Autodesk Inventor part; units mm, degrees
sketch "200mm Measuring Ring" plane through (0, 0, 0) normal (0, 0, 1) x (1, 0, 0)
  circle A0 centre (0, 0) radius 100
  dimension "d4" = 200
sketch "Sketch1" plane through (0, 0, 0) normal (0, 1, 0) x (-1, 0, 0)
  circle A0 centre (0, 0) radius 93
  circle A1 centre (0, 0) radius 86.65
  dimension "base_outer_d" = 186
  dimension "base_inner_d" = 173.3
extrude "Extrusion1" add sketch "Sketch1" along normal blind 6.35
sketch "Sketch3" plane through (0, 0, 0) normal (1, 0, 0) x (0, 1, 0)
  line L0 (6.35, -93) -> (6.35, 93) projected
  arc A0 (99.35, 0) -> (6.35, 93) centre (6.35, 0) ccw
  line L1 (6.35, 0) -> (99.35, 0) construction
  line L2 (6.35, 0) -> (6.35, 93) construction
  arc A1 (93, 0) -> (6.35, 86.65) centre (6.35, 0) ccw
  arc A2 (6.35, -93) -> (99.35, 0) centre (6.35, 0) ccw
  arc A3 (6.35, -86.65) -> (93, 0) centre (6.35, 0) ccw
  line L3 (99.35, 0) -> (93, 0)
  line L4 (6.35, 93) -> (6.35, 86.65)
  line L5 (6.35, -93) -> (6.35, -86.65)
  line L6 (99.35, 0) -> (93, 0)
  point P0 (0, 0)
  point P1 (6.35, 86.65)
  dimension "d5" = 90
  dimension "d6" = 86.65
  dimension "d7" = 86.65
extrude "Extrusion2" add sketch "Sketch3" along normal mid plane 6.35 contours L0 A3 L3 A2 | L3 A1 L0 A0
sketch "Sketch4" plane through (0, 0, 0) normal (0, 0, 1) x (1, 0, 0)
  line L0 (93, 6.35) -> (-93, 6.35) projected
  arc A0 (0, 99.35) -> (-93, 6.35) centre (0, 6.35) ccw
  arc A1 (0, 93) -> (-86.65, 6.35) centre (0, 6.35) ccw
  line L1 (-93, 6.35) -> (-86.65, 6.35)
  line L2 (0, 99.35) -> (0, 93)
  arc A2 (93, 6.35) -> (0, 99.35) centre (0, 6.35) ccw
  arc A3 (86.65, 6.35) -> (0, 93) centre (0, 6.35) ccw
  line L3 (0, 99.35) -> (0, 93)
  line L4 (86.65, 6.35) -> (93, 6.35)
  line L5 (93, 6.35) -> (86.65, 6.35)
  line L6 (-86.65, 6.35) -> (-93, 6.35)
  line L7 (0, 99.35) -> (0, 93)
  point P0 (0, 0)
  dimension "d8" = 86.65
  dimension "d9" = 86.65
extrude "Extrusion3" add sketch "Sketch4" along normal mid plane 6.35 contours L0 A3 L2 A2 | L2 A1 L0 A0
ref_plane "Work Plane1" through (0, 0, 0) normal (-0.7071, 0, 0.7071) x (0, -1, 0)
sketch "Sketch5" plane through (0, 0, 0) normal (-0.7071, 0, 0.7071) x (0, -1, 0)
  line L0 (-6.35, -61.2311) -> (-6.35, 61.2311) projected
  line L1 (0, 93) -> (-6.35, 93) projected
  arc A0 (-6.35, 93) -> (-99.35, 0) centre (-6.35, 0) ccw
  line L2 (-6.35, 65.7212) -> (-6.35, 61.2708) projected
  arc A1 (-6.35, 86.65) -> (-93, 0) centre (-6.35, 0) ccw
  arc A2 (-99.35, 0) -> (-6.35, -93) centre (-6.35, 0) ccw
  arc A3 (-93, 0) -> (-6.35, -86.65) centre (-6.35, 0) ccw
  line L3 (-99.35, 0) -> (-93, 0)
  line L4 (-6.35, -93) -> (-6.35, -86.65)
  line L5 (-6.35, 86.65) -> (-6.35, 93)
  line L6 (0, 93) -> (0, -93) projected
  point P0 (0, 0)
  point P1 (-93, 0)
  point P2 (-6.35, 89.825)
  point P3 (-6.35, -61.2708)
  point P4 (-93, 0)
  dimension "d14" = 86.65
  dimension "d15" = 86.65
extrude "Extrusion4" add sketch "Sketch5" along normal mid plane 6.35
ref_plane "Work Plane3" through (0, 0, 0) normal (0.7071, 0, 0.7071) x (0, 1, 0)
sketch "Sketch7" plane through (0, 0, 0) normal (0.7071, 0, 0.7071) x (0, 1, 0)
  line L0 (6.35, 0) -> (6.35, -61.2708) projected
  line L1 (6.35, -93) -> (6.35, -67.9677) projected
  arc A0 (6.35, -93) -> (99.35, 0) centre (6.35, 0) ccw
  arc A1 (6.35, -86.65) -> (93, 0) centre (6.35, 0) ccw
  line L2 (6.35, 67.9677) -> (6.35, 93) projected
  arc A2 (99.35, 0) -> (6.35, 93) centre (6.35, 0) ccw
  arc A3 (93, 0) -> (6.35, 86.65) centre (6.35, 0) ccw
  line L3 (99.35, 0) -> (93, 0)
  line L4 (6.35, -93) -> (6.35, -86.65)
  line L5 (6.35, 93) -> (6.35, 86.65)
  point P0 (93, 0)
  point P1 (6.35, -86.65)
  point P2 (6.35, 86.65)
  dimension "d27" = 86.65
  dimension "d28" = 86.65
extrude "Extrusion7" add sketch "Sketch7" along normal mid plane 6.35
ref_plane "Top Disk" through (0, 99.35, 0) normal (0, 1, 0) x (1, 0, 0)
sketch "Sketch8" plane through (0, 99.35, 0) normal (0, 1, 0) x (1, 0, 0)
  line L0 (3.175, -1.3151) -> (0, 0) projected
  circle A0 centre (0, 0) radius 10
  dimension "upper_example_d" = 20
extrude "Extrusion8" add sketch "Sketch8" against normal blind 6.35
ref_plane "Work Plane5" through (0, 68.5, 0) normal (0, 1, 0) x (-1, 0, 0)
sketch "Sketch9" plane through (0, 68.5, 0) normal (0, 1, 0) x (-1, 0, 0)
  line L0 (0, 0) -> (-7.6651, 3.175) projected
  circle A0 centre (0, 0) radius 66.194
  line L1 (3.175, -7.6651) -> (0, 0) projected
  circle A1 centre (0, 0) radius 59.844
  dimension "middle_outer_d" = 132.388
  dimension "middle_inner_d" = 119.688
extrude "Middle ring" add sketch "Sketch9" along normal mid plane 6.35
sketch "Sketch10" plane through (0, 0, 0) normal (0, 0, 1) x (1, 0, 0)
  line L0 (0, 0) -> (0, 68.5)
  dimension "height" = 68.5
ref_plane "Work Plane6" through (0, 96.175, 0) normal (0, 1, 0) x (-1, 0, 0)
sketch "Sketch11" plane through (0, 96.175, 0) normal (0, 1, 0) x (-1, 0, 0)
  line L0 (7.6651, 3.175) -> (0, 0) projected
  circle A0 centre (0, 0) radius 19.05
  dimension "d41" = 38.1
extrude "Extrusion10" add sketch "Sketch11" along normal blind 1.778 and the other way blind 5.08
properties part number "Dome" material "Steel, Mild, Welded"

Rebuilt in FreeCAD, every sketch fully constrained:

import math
import FreeCAD as App
import Part
import Sketcher

V = App.Vector
Q = App.Units.Quantity

doc = App.newDocument("Part")
body = doc.addObject("PartDesign::Body", "Body")

# Sketch on XZ plane
sketch1 = body.newObject("Sketcher::SketchObject", "Sketch")
sketch1.AttachmentSupport = (doc.getObject("XZ_Plane"), [""])
sketch1.MapMode = "FlatFace"
sketch1.addGeometry([
    Part.Circle(V(0, 0, 0), V(0, 0, 1), 93),
    Part.Circle(V(0, 0, 0), V(0, 0, 1), 87),
], False)
sketch1.addConstraint([
    Sketcher.Constraint("Coincident", 0, 3, -1, 1),
    Sketcher.Constraint("Coincident", 1, 3, -1, 1),
    Sketcher.Constraint("Diameter", 0, 186.0),
    Sketcher.Constraint("Diameter", 1, 173.3),
])
pad1 = body.newObject("PartDesign::Pad", "Pad")
pad1.Profile = sketch1
pad1.Length = Q("0.25 in")
pad1.Reversed = True

# Sketch on YZ plane
sketch2 = body.newObject("Sketcher::SketchObject", "Sketch001")
sketch2.AttachmentSupport = (doc.getObject("YZ_Plane"), [""])
sketch2.MapMode = "FlatFace"
sketch2.addGeometry([
    Part.LineSegment(V(6, -87, 0), V(6, -93, 0)),
    Part.ArcOfCircle(Part.Circle(V(6, 0, 0), V(0, 0, 1), 93), math.radians(-90), math.radians(90)),
    Part.LineSegment(V(6, 93, 0), V(6, 87, 0)),
    Part.ArcOfCircle(Part.Circle(V(6, 0, 0), V(0, 0, 1), 87), math.radians(-90), math.radians(90)),
], False)
sketch2.addConstraint([
    Sketcher.Constraint("Coincident", 0, 2, 1, 1),
    Sketcher.Constraint("Coincident", 1, 2, 2, 1),
    Sketcher.Constraint("Coincident", 2, 2, 3, 2),
    Sketcher.Constraint("Coincident", 3, 1, 0, 1),
    Sketcher.Constraint("Vertical", 0),
    Sketcher.Constraint("Vertical", 2),
    Sketcher.Constraint("Coincident", 3, 3, 1, 3),
    Sketcher.Constraint("Symmetric", 0, 2, 1, 2, -1),
    Sketcher.Constraint("Vertical", 3, 3, 0, 2),
    Sketcher.Constraint("Radius", 3, 86.65),
    Sketcher.Constraint("DistanceY", 0, 2, 0, 1, Q("0.25 in")),
    Sketcher.Constraint("DistanceX", -1, 1, 1, 3, Q("0.25 in")),
])
pad2 = body.newObject("PartDesign::Pad", "Pad001")
pad2.Profile = sketch2
pad2.Length = Q("0.25 in")
pad2.Midplane = True

# Sketch on XY plane
sketch3 = body.newObject("Sketcher::SketchObject", "Sketch002")
sketch3.AttachmentSupport = (doc.getObject("XY_Plane"), [""])
sketch3.MapMode = "FlatFace"
sketch3.addGeometry([
    Part.LineSegment(V(87, 6, 0), V(93, 6, 0)),
    Part.ArcOfCircle(Part.Circle(V(0, 6, 0), V(0, 0, 1), 93), math.radians(0), math.radians(180)),
    Part.LineSegment(V(-93, 6, 0), V(-87, 6, 0)),
    Part.ArcOfCircle(Part.Circle(V(0, 6, 0), V(0, 0, 1), 87), math.radians(0), math.radians(180)),
], False)
sketch3.addConstraint([
    Sketcher.Constraint("Coincident", 0, 2, 1, 1),
    Sketcher.Constraint("Coincident", 1, 2, 2, 1),
    Sketcher.Constraint("Coincident", 2, 2, 3, 2),
    Sketcher.Constraint("Coincident", 3, 1, 0, 1),
    Sketcher.Constraint("Horizontal", 0),
    Sketcher.Constraint("Horizontal", 2),
    Sketcher.Constraint("Coincident", 3, 3, 1, 3),
    Sketcher.Constraint("Symmetric", 0, 2, 1, 2, -2),
    Sketcher.Constraint("Horizontal", 3, 3, 0, 2),
    Sketcher.Constraint("Radius", 3, 86.65),
    Sketcher.Constraint("DistanceX", 0, 1, 0, 2, Q("0.25 in")),
    Sketcher.Constraint("DistanceY", -1, 1, 1, 3, Q("0.25 in")),
])
pad3 = body.newObject("PartDesign::Pad", "Pad002")
pad3.Profile = sketch3
pad3.Length = Q("0.25 in")
pad3.Midplane = True

# Sketch on an angled plane
sketch4 = body.newObject("Sketcher::SketchObject", "Sketch003")
sketch4.Placement = App.Placement(V(0, 0, 0), App.Rotation(V(0, -1, 0), V(0.707106781, 0, 0.707106781), V(-0.707106781, 0, 0.707106781), "ZXY"))
sketch4.addGeometry([
    Part.LineSegment(V(-6, 87, 0), V(-6, 93, 0)),
    Part.ArcOfCircle(Part.Circle(V(-6, 0, 0), V(0, 0, 1), 93), math.radians(90), math.radians(270)),
    Part.LineSegment(V(-6, -93, 0), V(-6, -87, 0)),
    Part.ArcOfCircle(Part.Circle(V(-6, 0, 0), V(0, 0, 1), 87), math.radians(90), math.radians(270)),
], False)
sketch4.addConstraint([
    Sketcher.Constraint("Coincident", 0, 2, 1, 1),
    Sketcher.Constraint("Coincident", 1, 2, 2, 1),
    Sketcher.Constraint("Coincident", 2, 2, 3, 2),
    Sketcher.Constraint("Coincident", 3, 1, 0, 1),
    Sketcher.Constraint("Vertical", 0),
    Sketcher.Constraint("Vertical", 2),
    Sketcher.Constraint("Coincident", 3, 3, 1, 3),
    Sketcher.Constraint("Symmetric", 0, 2, 1, 2, -1),
    Sketcher.Constraint("Vertical", 3, 3, 0, 2),
    Sketcher.Constraint("Radius", 3, 86.65),
    Sketcher.Constraint("DistanceY", 0, 1, 0, 2, Q("0.25 in")),
    Sketcher.Constraint("DistanceX", 1, 3, -1, 1, Q("0.25 in")),
])
pad4 = body.newObject("PartDesign::Pad", "Pad003")
pad4.Profile = sketch4
pad4.Length = Q("0.25 in")
pad4.Midplane = True

# Sketch on an angled plane
sketch5 = body.newObject("Sketcher::SketchObject", "Sketch004")
sketch5.Placement = App.Placement(V(0, 0, 0), App.Rotation(V(0, 1, 0), V(-0.707106781, 0, 0.707106781), V(0.707106781, 0, 0.707106781), "ZXY"))
sketch5.addGeometry([
    Part.LineSegment(V(6, -87, 0), V(6, -93, 0)),
    Part.ArcOfCircle(Part.Circle(V(6, 0, 0), V(0, 0, 1), 93), math.radians(-90), math.radians(90)),
    Part.LineSegment(V(6, 93, 0), V(6, 87, 0)),
    Part.ArcOfCircle(Part.Circle(V(6, 0, 0), V(0, 0, 1), 87), math.radians(-90), math.radians(90)),
], False)
sketch5.addConstraint([
    Sketcher.Constraint("Coincident", 0, 2, 1, 1),
    Sketcher.Constraint("Coincident", 1, 2, 2, 1),
    Sketcher.Constraint("Coincident", 2, 2, 3, 2),
    Sketcher.Constraint("Coincident", 3, 1, 0, 1),
    Sketcher.Constraint("Vertical", 0),
    Sketcher.Constraint("Vertical", 2),
    Sketcher.Constraint("Coincident", 3, 3, 1, 3),
    Sketcher.Constraint("Symmetric", 0, 2, 1, 2, -1),
    Sketcher.Constraint("Vertical", 3, 3, 0, 2),
    Sketcher.Constraint("Radius", 3, 86.65),
    Sketcher.Constraint("DistanceY", 0, 2, 0, 1, Q("0.25 in")),
    Sketcher.Constraint("DistanceX", -1, 1, 1, 3, Q("0.25 in")),
])
pad5 = body.newObject("PartDesign::Pad", "Pad004")
pad5.Profile = sketch5
pad5.Length = Q("0.25 in")
pad5.Midplane = True

# Sketch on XZ plane
sketch6 = body.newObject("Sketcher::SketchObject", "Sketch005")
sketch6.AttachmentSupport = (doc.getObject("XZ_Plane"), [""])
sketch6.MapMode = "FlatFace"
sketch6.AttachmentOffset = App.Placement(V(0, 0, -99.35), App.Rotation())
sketch6.addGeometry(Part.Circle(V(0, 0, 0), V(0, 0, 1), 10), False)
sketch6.addConstraint([
    Sketcher.Constraint("Coincident", 0, 3, -1, 1),
    Sketcher.Constraint("Diameter", 0, Q("0.7874 in")),
])
pad6 = body.newObject("PartDesign::Pad", "Pad005")
pad6.Profile = sketch6
pad6.Length = Q("0.25 in")

# Sketch on XZ plane
sketch7 = body.newObject("Sketcher::SketchObject", "Sketch006")
sketch7.AttachmentSupport = (doc.getObject("XZ_Plane"), [""])
sketch7.MapMode = "FlatFace"
sketch7.AttachmentOffset = App.Placement(V(0, 0, -68.5), App.Rotation())
sketch7.addGeometry([
    Part.Circle(V(0, 0, 0), V(0, 0, 1), 66),
    Part.Circle(V(0, 0, 0), V(0, 0, 1), 60),
], False)
sketch7.addConstraint([
    Sketcher.Constraint("Coincident", 0, 3, -1, 1),
    Sketcher.Constraint("Coincident", 1, 3, -1, 1),
    Sketcher.Constraint("Diameter", 0, 132.388),
    Sketcher.Constraint("Diameter", 1, 119.688),
])
pad7 = body.newObject("PartDesign::Pad", "Pad006")
pad7.Profile = sketch7
pad7.Length = Q("0.25 in")
pad7.Midplane = True

# Sketch on XZ plane
sketch8 = body.newObject("Sketcher::SketchObject", "Sketch007")
sketch8.AttachmentSupport = (doc.getObject("XZ_Plane"), [""])
sketch8.MapMode = "FlatFace"
sketch8.AttachmentOffset = App.Placement(V(0, 0, -96.175), App.Rotation())
sketch8.addGeometry(Part.Circle(V(0, 0, 0), V(0, 0, 1), 19), False)
sketch8.addConstraint([
    Sketcher.Constraint("Coincident", 0, 3, -1, 1),
    Sketcher.Constraint("Diameter", 0, Q("1.5 in")),
])
pad8 = body.newObject("PartDesign::Pad", "Pad007")
pad8.Profile = sketch8
pad8.Type = "TwoLengths"
pad8.Length = Q("0.07 in")
pad8.Length2 = Q("0.2 in")
pad8.Reversed = True

doc.recompute()
